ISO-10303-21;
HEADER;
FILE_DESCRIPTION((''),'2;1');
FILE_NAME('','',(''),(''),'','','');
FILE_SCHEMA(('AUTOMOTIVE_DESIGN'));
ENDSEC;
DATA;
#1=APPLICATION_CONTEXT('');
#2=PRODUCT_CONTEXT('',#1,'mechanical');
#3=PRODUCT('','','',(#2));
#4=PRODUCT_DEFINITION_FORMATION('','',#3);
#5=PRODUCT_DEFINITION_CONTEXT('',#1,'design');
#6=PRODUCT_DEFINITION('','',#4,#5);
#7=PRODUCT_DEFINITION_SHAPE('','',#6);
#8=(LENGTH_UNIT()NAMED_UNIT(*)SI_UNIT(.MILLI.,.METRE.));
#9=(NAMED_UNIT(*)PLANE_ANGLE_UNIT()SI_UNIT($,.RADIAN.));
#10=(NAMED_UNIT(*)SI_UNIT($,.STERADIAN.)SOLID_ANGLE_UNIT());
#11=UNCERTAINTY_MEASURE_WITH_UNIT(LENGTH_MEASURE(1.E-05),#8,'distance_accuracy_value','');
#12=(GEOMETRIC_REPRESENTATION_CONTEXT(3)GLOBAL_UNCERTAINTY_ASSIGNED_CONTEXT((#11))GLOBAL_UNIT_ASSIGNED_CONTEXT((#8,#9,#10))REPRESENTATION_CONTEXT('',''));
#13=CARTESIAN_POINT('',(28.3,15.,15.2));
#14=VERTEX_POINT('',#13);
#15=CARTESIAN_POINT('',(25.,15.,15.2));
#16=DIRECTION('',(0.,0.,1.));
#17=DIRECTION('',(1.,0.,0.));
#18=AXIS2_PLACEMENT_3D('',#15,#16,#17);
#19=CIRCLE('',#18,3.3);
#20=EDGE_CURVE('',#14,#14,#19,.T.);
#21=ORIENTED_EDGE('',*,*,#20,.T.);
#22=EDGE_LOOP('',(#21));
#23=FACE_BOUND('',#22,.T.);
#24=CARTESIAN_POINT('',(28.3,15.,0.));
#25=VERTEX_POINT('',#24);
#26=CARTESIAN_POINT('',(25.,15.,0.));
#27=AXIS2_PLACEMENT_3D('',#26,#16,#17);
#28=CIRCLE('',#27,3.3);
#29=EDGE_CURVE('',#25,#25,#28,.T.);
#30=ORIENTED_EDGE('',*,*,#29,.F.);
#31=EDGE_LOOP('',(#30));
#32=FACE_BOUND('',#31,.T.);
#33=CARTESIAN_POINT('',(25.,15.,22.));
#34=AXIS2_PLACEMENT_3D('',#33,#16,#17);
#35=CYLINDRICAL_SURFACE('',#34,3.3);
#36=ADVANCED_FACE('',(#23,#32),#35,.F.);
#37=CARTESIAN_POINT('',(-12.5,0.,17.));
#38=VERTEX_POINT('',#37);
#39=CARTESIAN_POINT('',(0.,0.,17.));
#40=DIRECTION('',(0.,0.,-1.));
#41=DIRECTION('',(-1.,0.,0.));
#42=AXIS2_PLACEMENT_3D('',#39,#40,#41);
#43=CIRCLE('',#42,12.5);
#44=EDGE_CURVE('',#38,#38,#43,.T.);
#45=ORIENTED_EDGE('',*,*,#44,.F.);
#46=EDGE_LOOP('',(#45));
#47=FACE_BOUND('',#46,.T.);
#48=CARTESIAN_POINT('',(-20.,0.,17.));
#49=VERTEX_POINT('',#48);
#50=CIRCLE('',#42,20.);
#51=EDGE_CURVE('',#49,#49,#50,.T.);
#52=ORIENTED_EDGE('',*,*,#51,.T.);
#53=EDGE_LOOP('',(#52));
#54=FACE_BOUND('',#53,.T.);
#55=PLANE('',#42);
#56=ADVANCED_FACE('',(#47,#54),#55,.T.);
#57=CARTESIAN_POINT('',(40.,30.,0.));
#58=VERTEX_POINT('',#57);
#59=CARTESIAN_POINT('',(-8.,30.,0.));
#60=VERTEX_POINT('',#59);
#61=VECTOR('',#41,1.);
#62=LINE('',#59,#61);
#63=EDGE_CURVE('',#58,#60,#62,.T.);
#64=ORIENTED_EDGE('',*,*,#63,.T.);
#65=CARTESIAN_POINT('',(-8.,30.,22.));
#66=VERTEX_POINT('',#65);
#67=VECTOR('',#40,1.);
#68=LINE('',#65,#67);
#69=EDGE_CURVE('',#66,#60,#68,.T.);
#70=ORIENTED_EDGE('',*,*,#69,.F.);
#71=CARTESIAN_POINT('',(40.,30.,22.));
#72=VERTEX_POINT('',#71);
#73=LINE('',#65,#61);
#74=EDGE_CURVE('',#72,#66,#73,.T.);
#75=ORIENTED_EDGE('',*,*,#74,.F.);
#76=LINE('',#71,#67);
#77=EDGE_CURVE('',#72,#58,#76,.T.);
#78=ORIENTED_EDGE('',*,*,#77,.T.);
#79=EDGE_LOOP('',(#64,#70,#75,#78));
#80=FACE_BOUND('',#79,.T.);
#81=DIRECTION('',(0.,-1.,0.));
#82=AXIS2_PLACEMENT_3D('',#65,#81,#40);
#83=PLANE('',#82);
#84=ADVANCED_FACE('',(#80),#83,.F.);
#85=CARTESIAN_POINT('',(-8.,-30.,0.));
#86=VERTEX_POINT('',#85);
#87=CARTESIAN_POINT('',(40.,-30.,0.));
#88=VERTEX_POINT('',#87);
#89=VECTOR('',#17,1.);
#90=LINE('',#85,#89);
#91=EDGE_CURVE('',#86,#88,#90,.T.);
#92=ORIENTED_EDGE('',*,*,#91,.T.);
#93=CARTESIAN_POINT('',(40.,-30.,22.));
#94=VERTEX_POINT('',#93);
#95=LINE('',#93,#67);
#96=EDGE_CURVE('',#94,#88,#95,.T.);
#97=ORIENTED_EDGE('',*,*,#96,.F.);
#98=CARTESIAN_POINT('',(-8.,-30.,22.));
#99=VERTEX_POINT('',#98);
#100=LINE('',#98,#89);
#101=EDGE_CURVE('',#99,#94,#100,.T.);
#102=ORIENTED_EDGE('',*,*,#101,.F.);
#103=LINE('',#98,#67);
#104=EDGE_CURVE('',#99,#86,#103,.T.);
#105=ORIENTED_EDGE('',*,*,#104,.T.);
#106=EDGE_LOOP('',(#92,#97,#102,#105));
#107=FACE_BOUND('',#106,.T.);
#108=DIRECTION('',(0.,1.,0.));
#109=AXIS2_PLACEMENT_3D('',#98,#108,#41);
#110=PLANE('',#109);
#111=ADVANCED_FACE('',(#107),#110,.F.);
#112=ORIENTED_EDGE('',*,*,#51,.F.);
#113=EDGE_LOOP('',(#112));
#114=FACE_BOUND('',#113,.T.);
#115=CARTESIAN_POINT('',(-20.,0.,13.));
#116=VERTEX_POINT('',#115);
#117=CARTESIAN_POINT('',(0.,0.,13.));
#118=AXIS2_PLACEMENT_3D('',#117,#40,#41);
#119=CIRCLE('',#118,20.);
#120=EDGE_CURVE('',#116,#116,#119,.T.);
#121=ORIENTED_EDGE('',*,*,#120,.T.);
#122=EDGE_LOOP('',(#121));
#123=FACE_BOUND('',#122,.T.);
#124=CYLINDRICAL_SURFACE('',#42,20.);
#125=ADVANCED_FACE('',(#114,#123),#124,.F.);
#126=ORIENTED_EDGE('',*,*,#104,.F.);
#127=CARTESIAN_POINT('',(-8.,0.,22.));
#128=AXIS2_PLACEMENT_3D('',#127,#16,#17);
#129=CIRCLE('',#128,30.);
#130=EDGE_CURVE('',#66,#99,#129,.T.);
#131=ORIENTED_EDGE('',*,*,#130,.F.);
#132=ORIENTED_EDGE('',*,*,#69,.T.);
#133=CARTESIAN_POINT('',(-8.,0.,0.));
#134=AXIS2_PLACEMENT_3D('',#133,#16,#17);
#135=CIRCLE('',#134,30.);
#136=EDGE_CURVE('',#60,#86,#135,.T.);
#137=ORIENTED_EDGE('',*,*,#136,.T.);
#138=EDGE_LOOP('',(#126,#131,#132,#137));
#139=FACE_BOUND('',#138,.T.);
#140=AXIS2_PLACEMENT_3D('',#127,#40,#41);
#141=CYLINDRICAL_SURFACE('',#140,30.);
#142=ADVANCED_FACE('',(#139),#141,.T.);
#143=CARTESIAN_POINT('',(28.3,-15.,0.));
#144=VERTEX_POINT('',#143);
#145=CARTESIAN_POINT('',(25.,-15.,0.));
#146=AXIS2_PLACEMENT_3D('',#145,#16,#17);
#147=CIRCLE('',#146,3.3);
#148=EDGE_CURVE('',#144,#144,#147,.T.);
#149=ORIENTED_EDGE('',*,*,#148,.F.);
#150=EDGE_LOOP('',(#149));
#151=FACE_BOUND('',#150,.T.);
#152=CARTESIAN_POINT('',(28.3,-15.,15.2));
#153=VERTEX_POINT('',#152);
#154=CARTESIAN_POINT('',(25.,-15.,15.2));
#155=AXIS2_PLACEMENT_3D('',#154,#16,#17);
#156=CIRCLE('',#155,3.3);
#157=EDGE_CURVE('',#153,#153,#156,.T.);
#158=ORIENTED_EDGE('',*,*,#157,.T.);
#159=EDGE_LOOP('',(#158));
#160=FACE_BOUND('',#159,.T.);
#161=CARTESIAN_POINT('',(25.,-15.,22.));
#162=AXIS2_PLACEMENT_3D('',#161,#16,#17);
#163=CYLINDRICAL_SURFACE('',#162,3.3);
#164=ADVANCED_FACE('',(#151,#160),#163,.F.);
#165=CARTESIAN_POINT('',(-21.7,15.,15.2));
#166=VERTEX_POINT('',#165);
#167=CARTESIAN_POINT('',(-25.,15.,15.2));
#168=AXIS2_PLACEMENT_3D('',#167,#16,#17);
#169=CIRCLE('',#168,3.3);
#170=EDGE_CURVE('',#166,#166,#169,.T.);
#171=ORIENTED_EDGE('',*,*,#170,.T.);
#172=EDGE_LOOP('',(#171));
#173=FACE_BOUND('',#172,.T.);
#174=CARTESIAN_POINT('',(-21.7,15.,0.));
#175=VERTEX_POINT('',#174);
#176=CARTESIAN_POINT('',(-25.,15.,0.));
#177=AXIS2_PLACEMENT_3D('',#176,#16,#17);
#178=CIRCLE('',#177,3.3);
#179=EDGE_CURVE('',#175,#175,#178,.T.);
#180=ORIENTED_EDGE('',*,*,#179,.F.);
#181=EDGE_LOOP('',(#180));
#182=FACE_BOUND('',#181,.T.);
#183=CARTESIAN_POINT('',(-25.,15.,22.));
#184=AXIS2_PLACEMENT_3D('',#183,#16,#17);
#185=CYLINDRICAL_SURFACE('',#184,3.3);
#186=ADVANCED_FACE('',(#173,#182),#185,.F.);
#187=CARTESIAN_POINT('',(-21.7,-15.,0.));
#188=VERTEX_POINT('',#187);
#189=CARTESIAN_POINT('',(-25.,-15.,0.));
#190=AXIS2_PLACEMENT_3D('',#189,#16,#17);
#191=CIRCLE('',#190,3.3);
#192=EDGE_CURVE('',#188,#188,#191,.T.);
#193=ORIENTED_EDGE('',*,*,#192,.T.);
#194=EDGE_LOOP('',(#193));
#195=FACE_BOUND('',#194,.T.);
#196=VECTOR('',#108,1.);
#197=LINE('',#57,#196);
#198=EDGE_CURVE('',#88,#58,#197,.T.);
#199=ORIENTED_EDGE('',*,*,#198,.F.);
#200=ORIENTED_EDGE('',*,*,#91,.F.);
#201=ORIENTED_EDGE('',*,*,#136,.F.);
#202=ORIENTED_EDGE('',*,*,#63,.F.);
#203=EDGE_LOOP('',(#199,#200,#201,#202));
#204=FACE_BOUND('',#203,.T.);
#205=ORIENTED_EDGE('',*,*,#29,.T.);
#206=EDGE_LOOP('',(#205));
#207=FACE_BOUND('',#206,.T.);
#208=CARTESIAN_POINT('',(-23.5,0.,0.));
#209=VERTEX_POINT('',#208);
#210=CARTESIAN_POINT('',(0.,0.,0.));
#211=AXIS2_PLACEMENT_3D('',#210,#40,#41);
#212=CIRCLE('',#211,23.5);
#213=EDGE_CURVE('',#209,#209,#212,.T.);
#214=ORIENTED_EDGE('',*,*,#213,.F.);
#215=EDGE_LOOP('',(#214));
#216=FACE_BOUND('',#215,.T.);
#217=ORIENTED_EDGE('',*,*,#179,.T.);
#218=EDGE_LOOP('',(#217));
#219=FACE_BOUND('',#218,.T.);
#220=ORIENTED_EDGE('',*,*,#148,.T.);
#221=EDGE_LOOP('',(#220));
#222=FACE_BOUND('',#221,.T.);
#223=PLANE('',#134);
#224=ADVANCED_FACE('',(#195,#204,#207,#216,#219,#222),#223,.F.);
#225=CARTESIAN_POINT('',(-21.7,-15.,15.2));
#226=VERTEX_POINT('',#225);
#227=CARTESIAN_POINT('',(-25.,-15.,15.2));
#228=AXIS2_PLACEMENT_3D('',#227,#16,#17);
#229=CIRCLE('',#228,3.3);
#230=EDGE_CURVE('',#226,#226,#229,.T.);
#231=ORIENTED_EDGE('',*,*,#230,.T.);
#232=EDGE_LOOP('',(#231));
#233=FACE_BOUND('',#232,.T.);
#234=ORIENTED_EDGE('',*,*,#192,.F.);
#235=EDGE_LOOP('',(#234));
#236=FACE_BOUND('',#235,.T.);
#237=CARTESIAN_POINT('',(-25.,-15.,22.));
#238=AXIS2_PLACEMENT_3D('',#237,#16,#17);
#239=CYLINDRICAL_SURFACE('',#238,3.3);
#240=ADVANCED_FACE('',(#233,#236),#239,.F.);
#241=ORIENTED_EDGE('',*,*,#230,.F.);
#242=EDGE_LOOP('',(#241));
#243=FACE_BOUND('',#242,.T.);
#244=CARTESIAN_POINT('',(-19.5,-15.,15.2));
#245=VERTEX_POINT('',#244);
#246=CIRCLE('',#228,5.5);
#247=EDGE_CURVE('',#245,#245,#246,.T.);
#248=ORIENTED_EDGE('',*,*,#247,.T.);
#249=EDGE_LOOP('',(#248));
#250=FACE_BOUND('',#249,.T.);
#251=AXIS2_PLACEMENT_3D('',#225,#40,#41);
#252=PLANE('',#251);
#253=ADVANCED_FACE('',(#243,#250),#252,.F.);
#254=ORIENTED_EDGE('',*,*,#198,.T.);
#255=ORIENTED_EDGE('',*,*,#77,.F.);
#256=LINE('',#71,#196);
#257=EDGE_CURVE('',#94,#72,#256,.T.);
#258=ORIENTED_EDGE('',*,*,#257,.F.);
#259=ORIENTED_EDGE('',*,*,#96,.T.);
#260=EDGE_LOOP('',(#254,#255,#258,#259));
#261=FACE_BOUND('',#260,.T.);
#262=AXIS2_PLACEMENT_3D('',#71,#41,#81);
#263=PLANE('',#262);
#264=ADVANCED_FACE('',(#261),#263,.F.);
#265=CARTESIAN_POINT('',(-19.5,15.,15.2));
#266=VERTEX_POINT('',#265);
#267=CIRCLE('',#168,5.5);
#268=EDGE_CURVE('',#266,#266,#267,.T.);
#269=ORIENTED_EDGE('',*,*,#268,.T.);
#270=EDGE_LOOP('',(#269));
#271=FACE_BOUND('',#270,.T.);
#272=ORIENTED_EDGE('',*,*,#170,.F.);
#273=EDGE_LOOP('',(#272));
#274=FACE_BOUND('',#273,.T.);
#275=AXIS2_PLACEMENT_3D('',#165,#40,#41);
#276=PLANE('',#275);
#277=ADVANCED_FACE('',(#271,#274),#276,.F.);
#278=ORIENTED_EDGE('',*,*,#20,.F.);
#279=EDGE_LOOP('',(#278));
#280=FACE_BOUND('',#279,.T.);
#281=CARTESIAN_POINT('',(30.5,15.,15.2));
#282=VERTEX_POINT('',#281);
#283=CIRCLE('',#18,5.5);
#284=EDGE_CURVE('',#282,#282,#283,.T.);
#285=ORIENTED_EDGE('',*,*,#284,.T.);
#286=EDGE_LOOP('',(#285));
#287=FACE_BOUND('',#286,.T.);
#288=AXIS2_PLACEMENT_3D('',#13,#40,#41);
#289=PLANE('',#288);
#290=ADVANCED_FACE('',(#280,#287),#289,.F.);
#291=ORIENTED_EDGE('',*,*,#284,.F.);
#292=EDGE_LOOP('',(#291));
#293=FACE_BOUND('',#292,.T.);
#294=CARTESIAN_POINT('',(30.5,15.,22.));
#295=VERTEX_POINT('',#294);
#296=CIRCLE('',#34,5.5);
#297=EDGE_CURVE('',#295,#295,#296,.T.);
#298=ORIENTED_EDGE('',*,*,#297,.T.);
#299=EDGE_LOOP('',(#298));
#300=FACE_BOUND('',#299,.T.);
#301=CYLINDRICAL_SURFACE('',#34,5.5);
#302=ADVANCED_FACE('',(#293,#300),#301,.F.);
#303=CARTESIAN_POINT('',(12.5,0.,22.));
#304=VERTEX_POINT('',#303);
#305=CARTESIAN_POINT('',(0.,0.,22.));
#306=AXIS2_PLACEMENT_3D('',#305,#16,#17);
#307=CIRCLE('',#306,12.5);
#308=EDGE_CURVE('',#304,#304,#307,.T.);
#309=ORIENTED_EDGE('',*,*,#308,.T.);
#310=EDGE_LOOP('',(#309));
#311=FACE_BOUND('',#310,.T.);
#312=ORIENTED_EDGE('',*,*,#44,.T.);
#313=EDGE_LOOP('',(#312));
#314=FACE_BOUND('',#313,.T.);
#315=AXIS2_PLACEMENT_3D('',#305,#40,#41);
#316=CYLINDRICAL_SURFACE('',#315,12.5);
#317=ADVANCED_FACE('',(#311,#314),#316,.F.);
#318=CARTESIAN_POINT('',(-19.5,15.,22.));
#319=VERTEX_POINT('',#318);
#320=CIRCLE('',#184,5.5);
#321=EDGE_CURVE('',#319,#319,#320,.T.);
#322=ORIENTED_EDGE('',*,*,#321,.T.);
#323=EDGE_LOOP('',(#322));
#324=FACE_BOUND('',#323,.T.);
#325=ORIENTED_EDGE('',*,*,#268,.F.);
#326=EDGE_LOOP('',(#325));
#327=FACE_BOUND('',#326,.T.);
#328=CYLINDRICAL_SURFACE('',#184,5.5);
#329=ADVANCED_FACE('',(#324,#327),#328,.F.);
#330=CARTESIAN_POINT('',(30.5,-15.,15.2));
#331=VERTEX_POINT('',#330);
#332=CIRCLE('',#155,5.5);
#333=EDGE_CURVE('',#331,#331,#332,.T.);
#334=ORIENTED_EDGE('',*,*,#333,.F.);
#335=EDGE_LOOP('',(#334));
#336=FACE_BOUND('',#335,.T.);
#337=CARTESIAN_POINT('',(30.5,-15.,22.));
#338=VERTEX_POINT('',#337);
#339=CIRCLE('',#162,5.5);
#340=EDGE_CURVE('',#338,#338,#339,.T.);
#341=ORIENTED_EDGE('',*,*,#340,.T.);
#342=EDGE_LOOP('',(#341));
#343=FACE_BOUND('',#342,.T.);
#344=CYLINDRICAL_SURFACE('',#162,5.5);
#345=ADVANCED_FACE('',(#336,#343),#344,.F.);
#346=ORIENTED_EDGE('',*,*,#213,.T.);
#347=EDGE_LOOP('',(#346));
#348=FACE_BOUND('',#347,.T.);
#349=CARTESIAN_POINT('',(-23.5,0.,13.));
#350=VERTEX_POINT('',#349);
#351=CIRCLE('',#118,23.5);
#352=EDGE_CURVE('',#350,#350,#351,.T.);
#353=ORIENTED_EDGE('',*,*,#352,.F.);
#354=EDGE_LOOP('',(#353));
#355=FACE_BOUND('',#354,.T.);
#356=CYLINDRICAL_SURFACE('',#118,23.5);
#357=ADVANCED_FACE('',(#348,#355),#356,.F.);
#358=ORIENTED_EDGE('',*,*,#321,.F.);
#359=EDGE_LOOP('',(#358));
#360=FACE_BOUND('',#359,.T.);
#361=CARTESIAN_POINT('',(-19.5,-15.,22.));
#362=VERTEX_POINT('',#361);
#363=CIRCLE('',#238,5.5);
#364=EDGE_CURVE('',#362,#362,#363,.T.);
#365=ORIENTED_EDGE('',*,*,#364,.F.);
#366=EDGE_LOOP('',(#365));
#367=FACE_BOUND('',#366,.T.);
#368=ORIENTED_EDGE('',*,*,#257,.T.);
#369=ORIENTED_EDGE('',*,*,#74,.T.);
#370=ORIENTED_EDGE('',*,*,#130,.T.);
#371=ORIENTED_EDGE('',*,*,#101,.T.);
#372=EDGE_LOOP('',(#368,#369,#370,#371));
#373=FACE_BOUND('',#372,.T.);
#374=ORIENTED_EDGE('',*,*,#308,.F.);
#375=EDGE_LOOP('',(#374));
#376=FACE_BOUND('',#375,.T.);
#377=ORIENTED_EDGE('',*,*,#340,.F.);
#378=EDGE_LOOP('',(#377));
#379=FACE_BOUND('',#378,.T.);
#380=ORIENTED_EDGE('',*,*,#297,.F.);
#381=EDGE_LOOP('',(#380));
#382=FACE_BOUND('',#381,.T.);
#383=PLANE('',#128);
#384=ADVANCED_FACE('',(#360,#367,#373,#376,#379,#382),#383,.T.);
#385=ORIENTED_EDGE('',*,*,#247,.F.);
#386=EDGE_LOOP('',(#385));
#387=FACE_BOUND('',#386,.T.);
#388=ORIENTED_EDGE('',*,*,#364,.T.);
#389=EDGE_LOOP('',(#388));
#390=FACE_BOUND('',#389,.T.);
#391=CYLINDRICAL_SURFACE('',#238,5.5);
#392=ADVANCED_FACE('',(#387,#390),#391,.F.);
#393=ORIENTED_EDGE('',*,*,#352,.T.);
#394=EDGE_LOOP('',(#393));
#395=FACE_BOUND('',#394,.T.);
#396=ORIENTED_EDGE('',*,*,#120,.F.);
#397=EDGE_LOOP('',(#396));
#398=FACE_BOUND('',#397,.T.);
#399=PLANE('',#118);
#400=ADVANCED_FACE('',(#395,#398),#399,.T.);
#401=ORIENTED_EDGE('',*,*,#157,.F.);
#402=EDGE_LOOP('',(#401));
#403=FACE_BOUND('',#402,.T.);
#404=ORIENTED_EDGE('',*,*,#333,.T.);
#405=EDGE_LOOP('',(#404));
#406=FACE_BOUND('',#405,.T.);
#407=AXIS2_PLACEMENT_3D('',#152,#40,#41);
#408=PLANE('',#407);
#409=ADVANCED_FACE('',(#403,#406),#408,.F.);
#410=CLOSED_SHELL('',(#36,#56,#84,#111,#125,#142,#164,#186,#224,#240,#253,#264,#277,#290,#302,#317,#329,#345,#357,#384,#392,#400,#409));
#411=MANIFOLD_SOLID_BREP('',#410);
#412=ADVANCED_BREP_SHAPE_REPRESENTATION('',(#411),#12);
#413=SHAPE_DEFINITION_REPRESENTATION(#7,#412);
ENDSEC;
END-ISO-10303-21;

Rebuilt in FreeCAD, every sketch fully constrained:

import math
import FreeCAD as App
import Part
import Sketcher
from FreeCAD import Vector
Q = App.Units.Quantity

doc = App.newDocument("Part")
params = doc.addObject("Spreadsheet::Sheet", "Params")
for row, (alias, value) in enumerate([
    ("sketch1_diameter", "25 mm"),
    ("sketch1_radius", "30 mm"),
    ("sketch1_width", "48 mm"),
    ("pad1_length", "22 mm"),
    ("sketch2_diameter", "6.6 mm"),
    ("hole_diameter", "6.6 mm"),
    ("hole_cbore_diameter", "11 mm"),
    ("hole_cbore_depth", "6.8 mm"),
    ("sketch3_diameter", "47 mm"),
    ("pocket1_length", "13 mm"),
    ("sketch4_diameter", "40 mm"),
    ("pocket2_length", "4 mm"),
], start=1):
    params.set(f"A{row}", alias)
    params.set(f"B{row}", "=" + value)
    params.setAlias(f"B{row}", alias)

body = doc.addObject("PartDesign::Body", "Body")

# Sketch on XY plane
sketch1 = body.newObject("Sketcher::SketchObject", "Sketch")
sketch1.AttachmentSupport = (doc.getObject("XY_Plane"), [""])
sketch1.MapMode = "FlatFace"
sketch1.addGeometry(Part.LineSegment(Vector(40, 30, 0), Vector(-8, 30, 0)), False)
sketch1.addGeometry(Part.ArcOfCircle(Part.Circle(Vector(-8, 0, 0), Vector(0, 0, 1), 30), math.radians(90), math.radians(270)), False)
sketch1.addGeometry(Part.LineSegment(Vector(-8, -30, 0), Vector(40, -30, 0)), False)
sketch1.addGeometry(Part.LineSegment(Vector(40, -30, 0), Vector(40, 30, 0)), False)
sketch1.addGeometry(Part.Circle(Vector(0, 0, 0), Vector(0, 0, 1), 12), False)
sketch1.addConstraint(Sketcher.Constraint("Tangent", 0, 2, 1, 1))
sketch1.addConstraint(Sketcher.Constraint("Tangent", 1, 2, 2, 1))
sketch1.addConstraint(Sketcher.Constraint("Coincident", 2, 2, 3, 1))
sketch1.addConstraint(Sketcher.Constraint("Coincident", 3, 2, 0, 1))
sketch1.addConstraint(Sketcher.Constraint("Horizontal", 0))
sketch1.addConstraint(Sketcher.Constraint("Horizontal", 2))
sketch1.addConstraint(Sketcher.Constraint("Vertical", 3))
sketch1.addConstraint(Sketcher.Constraint("Coincident", 4, 3, -1, 1))
sketch1.addConstraint(Sketcher.Constraint("PointOnObject", 1, 3, -1))
sketch1.addConstraint(Sketcher.Constraint("Diameter", 4, Q("25 mm")))
sketch1.addConstraint(Sketcher.Constraint("Radius", 1, Q("30 mm")))
sketch1.addConstraint(Sketcher.Constraint("DistanceX", 0, 2, 0, 1, Q("48 mm")))
sketch1.addConstraint(Sketcher.Constraint("DistanceX", 1, 3, -1, 1, Q("8 mm")))
sketch1.setExpression("Constraints[9]", "Params.sketch1_diameter")
sketch1.setExpression("Constraints[10]", "Params.sketch1_radius")
sketch1.setExpression("Constraints[11]", "Params.sketch1_width")
pad1 = body.newObject("PartDesign::Pad", "Pad")
pad1.Profile = sketch1
pad1.setExpression("Length", "Params.pad1_length")

# Sketch on XY plane
sketch2 = body.newObject("Sketcher::SketchObject", "Sketch001")
sketch2.AttachmentSupport = (doc.getObject("XY_Plane"), [""])
sketch2.MapMode = "FlatFace"
sketch2.AttachmentOffset = App.Placement(Vector(0, 0, 22), App.Rotation())
sketch2.addGeometry(Part.Circle(Vector(-25, 15, 0), Vector(0, 0, 1), 3.3), False)
sketch2.addGeometry(Part.Circle(Vector(-25, -15, 0), Vector(0, 0, 1), 3.3), False)
sketch2.addGeometry(Part.Circle(Vector(25, 15, 0), Vector(0, 0, 1), 3.3), False)
sketch2.addGeometry(Part.Circle(Vector(25, -15, 0), Vector(0, 0, 1), 3.3), False)
sketch2.addConstraint(Sketcher.Constraint("Equal", 0, 1))
sketch2.addConstraint(Sketcher.Constraint("Equal", 1, 2))
sketch2.addConstraint(Sketcher.Constraint("Equal", 2, 3))
sketch2.addConstraint(Sketcher.Constraint("Symmetric", 1, 3, 2, 3, -1, 1))
sketch2.addConstraint(Sketcher.Constraint("Symmetric", 0, 3, 3, 3, -1, 1))
sketch2.addConstraint(Sketcher.Constraint("Symmetric", 0, 3, 2, 3, -2))
sketch2.addConstraint(Sketcher.Constraint("Diameter", 0, Q("6.6 mm")))
sketch2.addConstraint(Sketcher.Constraint("DistanceX", 0, 3, -1, 1, Q("25 mm")))
sketch2.addConstraint(Sketcher.Constraint("DistanceY", -1, 1, 0, 3, Q("15 mm")))
sketch2.setExpression("Constraints[6]", "Params.sketch2_diameter")
doc.recompute()
hole = body.newObject("PartDesign::Hole", "Hole")
hole.Profile = sketch2
hole.ThreadType = "None"
hole.setExpression("Diameter", "Params.hole_diameter")
hole.DepthType = "ThroughAll"
hole.HoleCutType = "Counterbore"
hole.setExpression("HoleCutDiameter", "Params.hole_cbore_diameter")
hole.setExpression("HoleCutDepth", "Params.hole_cbore_depth")

# Sketch on XY plane
sketch3 = body.newObject("Sketcher::SketchObject", "Sketch002")
sketch3.AttachmentSupport = (doc.getObject("XY_Plane"), [""])
sketch3.MapMode = "FlatFace"
sketch3.addGeometry(Part.Circle(Vector(0, 0, 0), Vector(0, 0, 1), 24), False)
sketch3.addConstraint(Sketcher.Constraint("Coincident", 0, 3, -1, 1))
sketch3.addConstraint(Sketcher.Constraint("Diameter", 0, Q("47 mm")))
sketch3.setExpression("Constraints[1]", "Params.sketch3_diameter")
pocket1 = body.newObject("PartDesign::Pocket", "Pocket")
pocket1.Profile = sketch3
pocket1.setExpression("Length", "Params.pocket1_length")
pocket1.Reversed = True

# Sketch on XY plane
sketch4 = body.newObject("Sketcher::SketchObject", "Sketch003")
sketch4.AttachmentSupport = (doc.getObject("XY_Plane"), [""])
sketch4.MapMode = "FlatFace"
sketch4.AttachmentOffset = App.Placement(Vector(0, 0, 13), App.Rotation())
sketch4.addGeometry(Part.Circle(Vector(0, 0, 0), Vector(0, 0, 1), 20), False)
sketch4.addConstraint(Sketcher.Constraint("Coincident", 0, 3, -1, 1))
sketch4.addConstraint(Sketcher.Constraint("Diameter", 0, Q("40 mm")))
sketch4.setExpression("Constraints[1]", "Params.sketch4_diameter")
pocket2 = body.newObject("PartDesign::Pocket", "Pocket001")
pocket2.Profile = sketch4
pocket2.setExpression("Length", "Params.pocket2_length")
pocket2.Reversed = True

doc.recompute()
